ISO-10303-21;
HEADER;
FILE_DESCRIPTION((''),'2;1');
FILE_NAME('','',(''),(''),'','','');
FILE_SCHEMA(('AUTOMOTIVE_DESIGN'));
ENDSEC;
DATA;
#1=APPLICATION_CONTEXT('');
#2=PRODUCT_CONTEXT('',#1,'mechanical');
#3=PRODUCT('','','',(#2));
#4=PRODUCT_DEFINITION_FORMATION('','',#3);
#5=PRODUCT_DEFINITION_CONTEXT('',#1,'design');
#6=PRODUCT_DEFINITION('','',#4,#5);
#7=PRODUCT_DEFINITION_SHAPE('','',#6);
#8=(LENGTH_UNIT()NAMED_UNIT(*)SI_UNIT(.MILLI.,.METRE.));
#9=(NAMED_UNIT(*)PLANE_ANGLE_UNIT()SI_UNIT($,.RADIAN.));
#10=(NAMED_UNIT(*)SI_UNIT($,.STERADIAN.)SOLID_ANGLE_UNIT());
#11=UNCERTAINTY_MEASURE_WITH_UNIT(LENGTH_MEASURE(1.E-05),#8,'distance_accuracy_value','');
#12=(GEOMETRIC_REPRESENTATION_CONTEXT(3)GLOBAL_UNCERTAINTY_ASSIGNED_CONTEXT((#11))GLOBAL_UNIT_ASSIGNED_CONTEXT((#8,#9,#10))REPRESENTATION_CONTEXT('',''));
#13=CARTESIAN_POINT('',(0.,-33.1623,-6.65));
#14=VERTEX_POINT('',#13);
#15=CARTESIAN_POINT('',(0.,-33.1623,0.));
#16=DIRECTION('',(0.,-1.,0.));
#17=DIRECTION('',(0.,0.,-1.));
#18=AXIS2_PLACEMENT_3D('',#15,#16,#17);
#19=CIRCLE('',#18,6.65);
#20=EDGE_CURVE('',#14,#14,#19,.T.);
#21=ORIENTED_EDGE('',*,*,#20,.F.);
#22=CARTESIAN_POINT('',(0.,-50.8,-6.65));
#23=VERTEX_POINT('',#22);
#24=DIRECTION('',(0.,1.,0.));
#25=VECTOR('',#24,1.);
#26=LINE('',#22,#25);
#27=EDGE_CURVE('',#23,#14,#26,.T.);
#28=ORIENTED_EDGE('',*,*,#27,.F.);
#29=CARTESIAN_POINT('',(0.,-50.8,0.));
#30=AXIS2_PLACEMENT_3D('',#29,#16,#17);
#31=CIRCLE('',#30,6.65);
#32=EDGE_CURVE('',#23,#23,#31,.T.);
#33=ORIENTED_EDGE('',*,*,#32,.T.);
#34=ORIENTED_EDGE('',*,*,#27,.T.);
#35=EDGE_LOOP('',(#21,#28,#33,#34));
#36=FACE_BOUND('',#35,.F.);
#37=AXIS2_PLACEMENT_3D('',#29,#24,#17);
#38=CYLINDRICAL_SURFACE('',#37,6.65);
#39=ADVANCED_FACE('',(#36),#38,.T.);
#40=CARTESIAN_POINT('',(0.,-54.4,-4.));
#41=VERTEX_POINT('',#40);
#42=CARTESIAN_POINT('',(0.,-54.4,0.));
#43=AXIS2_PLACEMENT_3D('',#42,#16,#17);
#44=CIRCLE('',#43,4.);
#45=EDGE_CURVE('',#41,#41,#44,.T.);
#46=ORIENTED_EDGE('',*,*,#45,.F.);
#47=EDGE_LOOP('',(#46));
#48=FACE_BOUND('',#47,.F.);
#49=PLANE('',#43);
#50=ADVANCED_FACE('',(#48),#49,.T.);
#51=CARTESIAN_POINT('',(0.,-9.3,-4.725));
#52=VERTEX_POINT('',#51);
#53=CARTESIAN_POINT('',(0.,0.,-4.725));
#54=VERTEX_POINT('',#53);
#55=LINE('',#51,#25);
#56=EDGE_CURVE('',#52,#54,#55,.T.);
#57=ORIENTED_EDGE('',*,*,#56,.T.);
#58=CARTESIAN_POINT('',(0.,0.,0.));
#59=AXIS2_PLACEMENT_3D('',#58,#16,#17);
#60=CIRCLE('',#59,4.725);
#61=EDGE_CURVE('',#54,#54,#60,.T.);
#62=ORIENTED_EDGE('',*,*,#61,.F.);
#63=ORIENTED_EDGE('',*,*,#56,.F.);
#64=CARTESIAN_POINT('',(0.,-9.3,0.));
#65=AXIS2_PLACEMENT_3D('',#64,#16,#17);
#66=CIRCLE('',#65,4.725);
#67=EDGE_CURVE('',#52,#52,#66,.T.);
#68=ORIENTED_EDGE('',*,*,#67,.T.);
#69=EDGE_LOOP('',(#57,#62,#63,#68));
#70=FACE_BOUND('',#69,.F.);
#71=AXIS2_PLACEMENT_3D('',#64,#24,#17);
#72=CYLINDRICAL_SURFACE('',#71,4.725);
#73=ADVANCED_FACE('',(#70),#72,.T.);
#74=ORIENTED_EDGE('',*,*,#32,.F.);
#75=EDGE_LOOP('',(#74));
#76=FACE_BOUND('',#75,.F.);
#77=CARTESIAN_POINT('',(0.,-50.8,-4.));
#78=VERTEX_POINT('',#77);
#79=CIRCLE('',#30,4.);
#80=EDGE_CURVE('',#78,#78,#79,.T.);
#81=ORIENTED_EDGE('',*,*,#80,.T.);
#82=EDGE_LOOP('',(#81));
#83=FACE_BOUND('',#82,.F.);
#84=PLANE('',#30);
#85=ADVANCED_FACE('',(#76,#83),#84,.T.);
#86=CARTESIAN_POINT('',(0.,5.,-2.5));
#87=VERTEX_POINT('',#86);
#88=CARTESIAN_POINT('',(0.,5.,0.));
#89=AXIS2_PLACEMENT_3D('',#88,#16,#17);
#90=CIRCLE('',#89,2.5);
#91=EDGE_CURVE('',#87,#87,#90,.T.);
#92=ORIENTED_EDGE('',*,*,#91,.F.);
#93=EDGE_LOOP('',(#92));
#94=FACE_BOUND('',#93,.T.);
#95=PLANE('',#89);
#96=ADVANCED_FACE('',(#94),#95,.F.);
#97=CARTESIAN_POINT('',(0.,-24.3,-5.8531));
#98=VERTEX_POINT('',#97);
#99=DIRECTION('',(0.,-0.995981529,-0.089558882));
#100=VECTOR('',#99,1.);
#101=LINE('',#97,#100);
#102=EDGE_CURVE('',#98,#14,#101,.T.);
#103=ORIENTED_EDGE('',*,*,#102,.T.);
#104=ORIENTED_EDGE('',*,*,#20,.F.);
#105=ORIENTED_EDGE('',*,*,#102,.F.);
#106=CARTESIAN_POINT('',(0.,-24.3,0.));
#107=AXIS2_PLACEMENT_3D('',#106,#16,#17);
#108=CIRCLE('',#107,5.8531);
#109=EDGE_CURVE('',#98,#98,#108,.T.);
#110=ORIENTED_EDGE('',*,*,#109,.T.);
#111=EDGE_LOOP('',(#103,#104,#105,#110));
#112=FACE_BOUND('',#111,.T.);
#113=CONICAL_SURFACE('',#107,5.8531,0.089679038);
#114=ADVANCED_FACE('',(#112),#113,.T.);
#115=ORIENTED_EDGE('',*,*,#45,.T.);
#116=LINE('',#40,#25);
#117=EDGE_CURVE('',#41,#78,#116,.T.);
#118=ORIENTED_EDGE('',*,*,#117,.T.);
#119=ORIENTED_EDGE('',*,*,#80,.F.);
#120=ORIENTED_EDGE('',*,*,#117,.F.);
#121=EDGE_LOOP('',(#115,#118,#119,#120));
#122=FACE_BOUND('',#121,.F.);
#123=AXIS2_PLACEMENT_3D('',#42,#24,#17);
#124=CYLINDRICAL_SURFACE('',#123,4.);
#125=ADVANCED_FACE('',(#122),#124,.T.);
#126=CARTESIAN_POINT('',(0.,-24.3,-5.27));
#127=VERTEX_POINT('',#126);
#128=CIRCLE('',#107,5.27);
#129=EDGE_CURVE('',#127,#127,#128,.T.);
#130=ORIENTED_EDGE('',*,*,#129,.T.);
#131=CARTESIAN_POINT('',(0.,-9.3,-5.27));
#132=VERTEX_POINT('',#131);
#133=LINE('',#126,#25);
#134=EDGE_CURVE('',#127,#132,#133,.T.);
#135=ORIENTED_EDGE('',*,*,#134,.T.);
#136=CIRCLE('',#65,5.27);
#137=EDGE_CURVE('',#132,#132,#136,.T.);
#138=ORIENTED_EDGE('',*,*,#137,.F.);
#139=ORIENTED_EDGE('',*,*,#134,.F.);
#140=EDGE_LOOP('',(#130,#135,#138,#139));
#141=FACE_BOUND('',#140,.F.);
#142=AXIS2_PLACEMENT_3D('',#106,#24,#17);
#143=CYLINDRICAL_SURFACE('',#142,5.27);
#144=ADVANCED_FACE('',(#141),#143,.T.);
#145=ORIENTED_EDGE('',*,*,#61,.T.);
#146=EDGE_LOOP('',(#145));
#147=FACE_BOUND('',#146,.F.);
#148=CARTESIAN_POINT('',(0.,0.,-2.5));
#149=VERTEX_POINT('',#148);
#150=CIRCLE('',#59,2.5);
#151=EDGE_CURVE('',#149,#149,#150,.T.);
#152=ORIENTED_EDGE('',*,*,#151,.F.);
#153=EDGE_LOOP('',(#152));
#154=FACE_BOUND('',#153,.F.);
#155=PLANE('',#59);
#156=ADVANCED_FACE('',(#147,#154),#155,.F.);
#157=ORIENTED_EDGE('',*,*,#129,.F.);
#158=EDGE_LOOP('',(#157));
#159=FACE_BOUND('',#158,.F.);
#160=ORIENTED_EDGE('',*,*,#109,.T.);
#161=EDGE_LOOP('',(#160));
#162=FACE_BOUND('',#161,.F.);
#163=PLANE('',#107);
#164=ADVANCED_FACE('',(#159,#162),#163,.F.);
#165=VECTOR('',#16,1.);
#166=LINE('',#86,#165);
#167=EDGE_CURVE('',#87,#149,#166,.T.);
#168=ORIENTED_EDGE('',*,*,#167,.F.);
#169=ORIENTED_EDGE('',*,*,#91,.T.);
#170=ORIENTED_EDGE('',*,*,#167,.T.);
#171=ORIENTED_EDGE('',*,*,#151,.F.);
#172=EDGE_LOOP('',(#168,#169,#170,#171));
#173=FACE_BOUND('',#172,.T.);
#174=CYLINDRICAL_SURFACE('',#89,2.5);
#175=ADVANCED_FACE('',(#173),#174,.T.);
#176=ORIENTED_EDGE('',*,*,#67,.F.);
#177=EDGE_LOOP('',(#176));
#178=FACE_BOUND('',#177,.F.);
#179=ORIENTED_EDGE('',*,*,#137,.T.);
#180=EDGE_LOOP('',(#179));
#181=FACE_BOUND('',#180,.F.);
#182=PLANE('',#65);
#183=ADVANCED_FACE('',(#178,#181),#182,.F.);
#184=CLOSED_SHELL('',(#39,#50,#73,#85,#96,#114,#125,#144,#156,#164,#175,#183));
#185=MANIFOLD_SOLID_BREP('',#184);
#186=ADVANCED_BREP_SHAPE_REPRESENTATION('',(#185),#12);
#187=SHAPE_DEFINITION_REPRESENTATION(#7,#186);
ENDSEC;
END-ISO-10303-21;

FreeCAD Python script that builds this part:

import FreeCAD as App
import Part
import Sketcher
from FreeCAD import Vector
Q = App.Units.Quantity


def add_polygon(sketch, points):
    """Adds a closed chain of lines whose ends are joined by coincident constraints."""
    first, n = sketch.GeometryCount, len(points)
    for a, b in zip(points, points[1:] + points[:1]):
        sketch.addGeometry(Part.LineSegment(App.Vector(*a, 0), App.Vector(*b, 0)), False)
    for i in range(n):
        sketch.addConstraint(Sketcher.Constraint("Coincident", first + i, 2, first + (i + 1) % n, 1))

doc = App.newDocument("Part")
body = doc.addObject("PartDesign::Body", "Body")

sketch1 = body.newObject("Sketcher::SketchObject", "Sketch")
sketch1.AttachmentSupport = (doc.getObject("YZ_Plane"), [""])
sketch1.MapMode = "FlatFace"
add_polygon(sketch1, [(0, -4.7), (0, -2.5), (5, -2.5), (5, 0), (-54.4, 0), (-54.4, -4), (-50.8, -4), (-50.8, -6.7), (-33.2, -6.7), (-24.3, -5.9), (-24.3, -5.3), (-9.3, -5.3), (-9.3, -4.7)])
sketch1.addConstraint([
    Sketcher.Constraint("Vertical", 0),
    Sketcher.Constraint("Horizontal", 1),
    Sketcher.Constraint("Vertical", 2),
    Sketcher.Constraint("Horizontal", 3),
    Sketcher.Constraint("Vertical", 4),
    Sketcher.Constraint("Horizontal", 5),
    Sketcher.Constraint("Vertical", 6),
    Sketcher.Constraint("Horizontal", 7),
    Sketcher.Constraint("Vertical", 9),
    Sketcher.Constraint("Horizontal", 10),
    Sketcher.Constraint("Vertical", 11),
    Sketcher.Constraint("Horizontal", 12),
    Sketcher.Constraint("PointOnObject", 0, 2, -2),
    Sketcher.Constraint("PointOnObject", 2, 2, -1),
    Sketcher.Constraint("DistanceX", 1, 1, 1, 2, Q("5 mm")),
    Sketcher.Constraint("DistanceX", 10, 1, 10, 2, Q("15 mm")),
    Sketcher.Constraint("DistanceY", 4, 2, 4, 1, Q("4 mm")),
    Sketcher.Constraint("DistanceX", 5, 1, 5, 2, Q("3.6 mm")),
    Sketcher.Constraint("DistanceX", 12, 1, 12, 2, Q("9.3 mm")),
    Sketcher.Constraint("DistanceY", 2, 1, 2, 2, Q("2.5 mm")),
    Sketcher.Constraint("DistanceX", 6, 2, 8, 2, Q("26.5 mm")),
    Sketcher.Constraint("DistanceY", 6, 2, -1, 1, Q("6.65 mm")),
    Sketcher.Constraint("DistanceY", 9, 2, -1, 1, Q("5.27 mm")),
    Sketcher.Constraint("DistanceY", 11, 2, -1, 1, Q("4.725 mm")),
    Sketcher.Constraint("DistanceY", 9, 1, 9, 2, Q("0.583 mm")),
    Sketcher.Constraint("Distance", 8, Q("8.898 mm")),
])
revolution = body.newObject("PartDesign::Revolution", "Revolution")
revolution.Profile = sketch1
revolution.ReferenceAxis = (sketch1, ["H_Axis"])
revolution.Angle = 360

doc.recompute()
